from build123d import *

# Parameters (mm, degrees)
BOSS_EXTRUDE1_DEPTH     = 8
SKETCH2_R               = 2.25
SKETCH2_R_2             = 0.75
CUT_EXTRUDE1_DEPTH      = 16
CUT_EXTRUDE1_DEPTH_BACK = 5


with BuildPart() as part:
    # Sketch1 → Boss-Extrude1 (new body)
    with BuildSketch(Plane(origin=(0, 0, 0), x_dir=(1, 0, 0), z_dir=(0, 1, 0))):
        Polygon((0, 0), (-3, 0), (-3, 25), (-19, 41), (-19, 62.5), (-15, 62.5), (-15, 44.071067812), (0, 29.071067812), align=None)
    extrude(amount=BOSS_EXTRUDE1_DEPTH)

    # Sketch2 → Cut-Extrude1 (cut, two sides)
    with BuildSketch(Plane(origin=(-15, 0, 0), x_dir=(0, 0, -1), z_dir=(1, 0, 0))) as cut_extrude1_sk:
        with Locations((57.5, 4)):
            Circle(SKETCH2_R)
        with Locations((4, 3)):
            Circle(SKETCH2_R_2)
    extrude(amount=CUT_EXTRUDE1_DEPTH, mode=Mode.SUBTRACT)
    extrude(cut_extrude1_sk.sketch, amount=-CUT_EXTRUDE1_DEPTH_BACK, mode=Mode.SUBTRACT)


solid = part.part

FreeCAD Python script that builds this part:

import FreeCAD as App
import Part
import Sketcher
from FreeCAD import Vector
Q = App.Units.Quantity

doc = App.newDocument("Part")
body = doc.addObject("PartDesign::Body", "Body")

sketch1 = body.newObject("Sketcher::SketchObject", "Sketch")
sketch1.AttachmentSupport = (doc.getObject("XZ_Plane"), [""])
sketch1.MapMode = "FlatFace"
sketch1.addGeometry(Part.LineSegment(Vector(-3, 0, 0), Vector(0, 0, 0)), False)
sketch1.addGeometry(Part.LineSegment(Vector(0, 0, 0), Vector(0, -29.1, 0)), False)
sketch1.addGeometry(Part.LineSegment(Vector(0, -29.1, 0), Vector(-15, -44.1, 0)), False)
sketch1.addGeometry(Part.LineSegment(Vector(-15, -44.1, 0), Vector(-15, -62.5, 0)), False)
sketch1.addGeometry(Part.LineSegment(Vector(-15, -62.5, 0), Vector(-19, -62.5, 0)), False)
sketch1.addGeometry(Part.LineSegment(Vector(-19, -62.5, 0), Vector(-19, -41, 0)), False)
sketch1.addGeometry(Part.LineSegment(Vector(-19, -41, 0), Vector(-3, -25, 0)), False)
sketch1.addGeometry(Part.LineSegment(Vector(-3, -25, 0), Vector(-3, 0, 0)), False)
sketch1.addConstraint(Sketcher.Constraint("Coincident", 0, 2, 1, 1))
sketch1.addConstraint(Sketcher.Constraint("Coincident", 1, 2, 2, 1))
sketch1.addConstraint(Sketcher.Constraint("Coincident", 2, 2, 3, 1))
sketch1.addConstraint(Sketcher.Constraint("Coincident", 3, 2, 4, 1))
sketch1.addConstraint(Sketcher.Constraint("Coincident", 4, 2, 5, 1))
sketch1.addConstraint(Sketcher.Constraint("Coincident", 5, 2, 6, 1))
sketch1.addConstraint(Sketcher.Constraint("Coincident", 6, 2, 7, 1))
sketch1.addConstraint(Sketcher.Constraint("Coincident", 7, 2, 0, 1))
sketch1.addConstraint(Sketcher.Constraint("Horizontal", 0))
sketch1.addConstraint(Sketcher.Constraint("Vertical", 1))
sketch1.addConstraint(Sketcher.Constraint("Vertical", 3))
sketch1.addConstraint(Sketcher.Constraint("Horizontal", 4))
sketch1.addConstraint(Sketcher.Constraint("Vertical", 5))
sketch1.addConstraint(Sketcher.Constraint("Vertical", 7))
sketch1.addConstraint(Sketcher.Constraint("Coincident", 0, 2, -1, 1))
sketch1.addConstraint(Sketcher.Constraint("Parallel", 2, 6))
sketch1.addConstraint(Sketcher.Constraint("DistanceX", 0, 1, 0, 2, Q("3 mm")))
sketch1.addConstraint(Sketcher.Constraint("DistanceX", 4, 2, 4, 1, Q("4 mm")))
sketch1.addConstraint(Sketcher.Constraint("DistanceY", 7, 1, 7, 2, Q("25 mm")))
sketch1.addConstraint(Sketcher.Constraint("Angle", 2, Q("-135 deg")))
sketch1.addConstraint(Sketcher.Constraint("DistanceY", 5, 1, 5, 2, Q("21.5 mm")))
sketch1.addConstraint(Sketcher.Constraint("DistanceX", 2, 2, -1, 1, Q("15 mm")))
sketch1.addConstraint(Sketcher.Constraint("DistanceY", 1, 2, 1, 1, Q("29.071068 mm")))
pad1 = body.newObject("PartDesign::Pad", "Pad")
pad1.Profile = sketch1
pad1.Length = 8
pad1.Reversed = True

sketch2 = body.newObject("Sketcher::SketchObject", "Sketch001")
sketch2.AttachmentSupport = (doc.getObject("YZ_Plane"), [""])
sketch2.MapMode = "FlatFace"
sketch2.AttachmentOffset = App.Placement(Vector(0, 0, -15), App.Rotation())
sketch2.addGeometry(Part.Circle(Vector(4, -57.5, 0), Vector(0, 0, 1), 2.2), False)
sketch2.addGeometry(Part.Circle(Vector(3, -4, 0), Vector(0, 0, 1), 0.8), False)
sketch2.addConstraint(Sketcher.Constraint("Diameter", 0, Q("4.5 mm")))
sketch2.addConstraint(Sketcher.Constraint("Diameter", 1, Q("1.5 mm")))
sketch2.addConstraint(Sketcher.Constraint("DistanceX", -1, 1, 0, 3, Q("4 mm")))
sketch2.addConstraint(Sketcher.Constraint("DistanceX", -1, 1, 1, 3, Q("3 mm")))
sketch2.addConstraint(Sketcher.Constraint("DistanceY", 1, 3, -1, 1, Q("4 mm")))
sketch2.addConstraint(Sketcher.Constraint("DistanceY", 0, 3, -1, 1, Q("57.5 mm")))
pocket1 = body.newObject("PartDesign::Pocket", "Pocket")
pocket1.Profile = sketch2
pocket1.Type = "ThroughAll"
pocket1.Midplane = True

doc.recompute()
